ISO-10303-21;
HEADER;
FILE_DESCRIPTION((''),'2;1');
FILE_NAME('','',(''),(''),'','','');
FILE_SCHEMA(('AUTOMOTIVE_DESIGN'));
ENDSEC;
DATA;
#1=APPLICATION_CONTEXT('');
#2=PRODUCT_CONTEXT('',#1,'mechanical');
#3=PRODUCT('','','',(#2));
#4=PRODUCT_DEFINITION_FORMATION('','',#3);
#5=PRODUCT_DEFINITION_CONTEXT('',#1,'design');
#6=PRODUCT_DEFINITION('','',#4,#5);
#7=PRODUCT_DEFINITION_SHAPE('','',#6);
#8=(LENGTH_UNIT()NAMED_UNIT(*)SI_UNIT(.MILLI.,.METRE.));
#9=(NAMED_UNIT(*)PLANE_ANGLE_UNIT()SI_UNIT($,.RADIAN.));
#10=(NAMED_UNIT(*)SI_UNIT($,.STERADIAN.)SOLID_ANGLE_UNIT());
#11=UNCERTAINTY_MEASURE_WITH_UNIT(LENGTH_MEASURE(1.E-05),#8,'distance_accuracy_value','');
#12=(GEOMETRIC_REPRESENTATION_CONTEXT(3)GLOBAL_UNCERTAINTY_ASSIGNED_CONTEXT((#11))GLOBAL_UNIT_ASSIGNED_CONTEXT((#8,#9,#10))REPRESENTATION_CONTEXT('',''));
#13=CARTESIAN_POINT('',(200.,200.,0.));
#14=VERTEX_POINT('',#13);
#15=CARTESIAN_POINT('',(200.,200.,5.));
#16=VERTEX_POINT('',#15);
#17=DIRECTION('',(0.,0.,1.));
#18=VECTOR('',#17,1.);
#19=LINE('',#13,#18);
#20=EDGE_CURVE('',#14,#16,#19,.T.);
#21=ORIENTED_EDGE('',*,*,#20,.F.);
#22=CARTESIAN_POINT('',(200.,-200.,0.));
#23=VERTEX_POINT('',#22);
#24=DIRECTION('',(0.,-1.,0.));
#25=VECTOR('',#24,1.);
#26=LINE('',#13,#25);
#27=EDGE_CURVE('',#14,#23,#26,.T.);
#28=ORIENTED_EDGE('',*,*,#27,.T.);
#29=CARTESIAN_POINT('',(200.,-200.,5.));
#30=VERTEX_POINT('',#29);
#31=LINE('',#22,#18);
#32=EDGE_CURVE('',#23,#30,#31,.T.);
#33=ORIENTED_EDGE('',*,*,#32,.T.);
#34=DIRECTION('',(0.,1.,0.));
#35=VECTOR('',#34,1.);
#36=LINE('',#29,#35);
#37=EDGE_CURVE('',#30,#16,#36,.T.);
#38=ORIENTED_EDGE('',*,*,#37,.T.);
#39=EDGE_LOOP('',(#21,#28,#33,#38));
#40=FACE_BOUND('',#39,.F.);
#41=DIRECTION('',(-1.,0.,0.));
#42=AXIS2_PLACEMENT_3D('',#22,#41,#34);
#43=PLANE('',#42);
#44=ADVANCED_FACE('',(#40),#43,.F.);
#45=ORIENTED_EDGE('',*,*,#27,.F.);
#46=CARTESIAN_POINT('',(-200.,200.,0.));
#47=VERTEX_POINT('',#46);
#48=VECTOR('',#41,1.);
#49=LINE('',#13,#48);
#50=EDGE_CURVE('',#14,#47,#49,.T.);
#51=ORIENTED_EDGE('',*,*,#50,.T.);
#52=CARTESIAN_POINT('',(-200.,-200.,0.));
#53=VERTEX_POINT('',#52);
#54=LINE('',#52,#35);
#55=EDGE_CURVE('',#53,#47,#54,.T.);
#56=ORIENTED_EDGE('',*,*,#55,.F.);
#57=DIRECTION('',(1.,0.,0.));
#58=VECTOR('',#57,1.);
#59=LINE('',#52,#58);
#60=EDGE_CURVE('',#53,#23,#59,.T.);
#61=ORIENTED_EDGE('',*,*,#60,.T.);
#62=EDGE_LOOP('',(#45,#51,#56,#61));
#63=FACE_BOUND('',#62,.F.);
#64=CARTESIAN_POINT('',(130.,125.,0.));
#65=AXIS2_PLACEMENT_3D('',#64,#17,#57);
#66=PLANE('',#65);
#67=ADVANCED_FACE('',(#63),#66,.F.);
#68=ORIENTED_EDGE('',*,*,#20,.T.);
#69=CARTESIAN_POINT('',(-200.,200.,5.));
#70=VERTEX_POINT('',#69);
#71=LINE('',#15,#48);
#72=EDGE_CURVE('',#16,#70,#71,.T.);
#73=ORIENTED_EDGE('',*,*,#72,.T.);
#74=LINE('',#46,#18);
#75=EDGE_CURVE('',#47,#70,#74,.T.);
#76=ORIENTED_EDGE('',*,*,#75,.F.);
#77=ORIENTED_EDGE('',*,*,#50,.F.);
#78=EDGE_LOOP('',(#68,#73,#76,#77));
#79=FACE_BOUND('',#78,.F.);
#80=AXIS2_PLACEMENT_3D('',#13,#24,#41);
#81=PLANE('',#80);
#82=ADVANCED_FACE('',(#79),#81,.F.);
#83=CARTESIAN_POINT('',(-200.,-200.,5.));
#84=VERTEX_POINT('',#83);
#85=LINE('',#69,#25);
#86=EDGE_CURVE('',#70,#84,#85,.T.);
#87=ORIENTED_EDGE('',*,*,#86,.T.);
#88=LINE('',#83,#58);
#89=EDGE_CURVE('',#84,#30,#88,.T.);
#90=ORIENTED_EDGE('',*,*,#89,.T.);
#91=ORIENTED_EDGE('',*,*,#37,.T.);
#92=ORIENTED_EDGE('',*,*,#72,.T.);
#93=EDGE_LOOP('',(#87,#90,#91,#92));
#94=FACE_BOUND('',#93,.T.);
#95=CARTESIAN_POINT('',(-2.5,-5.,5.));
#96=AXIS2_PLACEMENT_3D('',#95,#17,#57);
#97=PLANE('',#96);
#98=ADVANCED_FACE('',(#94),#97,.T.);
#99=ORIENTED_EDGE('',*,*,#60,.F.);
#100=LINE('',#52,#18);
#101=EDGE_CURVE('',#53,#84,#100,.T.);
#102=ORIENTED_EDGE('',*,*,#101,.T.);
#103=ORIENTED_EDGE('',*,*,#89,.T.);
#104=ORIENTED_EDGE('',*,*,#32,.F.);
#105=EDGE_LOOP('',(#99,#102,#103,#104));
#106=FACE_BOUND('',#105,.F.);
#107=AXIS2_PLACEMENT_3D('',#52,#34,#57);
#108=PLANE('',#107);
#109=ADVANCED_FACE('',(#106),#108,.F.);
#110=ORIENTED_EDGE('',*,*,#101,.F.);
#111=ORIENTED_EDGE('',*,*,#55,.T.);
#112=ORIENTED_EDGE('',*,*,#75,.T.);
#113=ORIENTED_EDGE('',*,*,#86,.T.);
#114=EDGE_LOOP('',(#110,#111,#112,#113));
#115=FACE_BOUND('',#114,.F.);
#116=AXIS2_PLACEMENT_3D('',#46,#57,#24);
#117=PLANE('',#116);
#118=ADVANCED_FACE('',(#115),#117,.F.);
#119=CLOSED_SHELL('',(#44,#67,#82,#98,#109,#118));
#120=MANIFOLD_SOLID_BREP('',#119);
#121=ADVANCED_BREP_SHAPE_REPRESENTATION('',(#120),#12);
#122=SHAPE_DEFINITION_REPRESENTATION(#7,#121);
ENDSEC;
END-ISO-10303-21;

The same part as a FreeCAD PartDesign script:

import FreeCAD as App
import Part
import Sketcher

doc = App.newDocument("Part")
params = doc.addObject("Spreadsheet::Sheet", "Params")
for row, (alias, value) in enumerate([
    ("sketch1_width", "400 mm"),
    ("sketch1_height", "130 mm"),
    ("pad1_length", "5 mm"),
    ("sketch2_width", "400 mm"),
    ("sketch2_width2", "130 mm"),
    ("pad2_length", "5 mm"),
    ("sketch3_width", "130 mm"),
    ("pad3_length", "5 mm"),
], start=1):
    params.set(f"A{row}", alias)
    params.set(f"B{row}", "=" + value)
    params.setAlias(f"B{row}", alias)

body = doc.addObject("PartDesign::Body", "Body")

# Sketch on XY plane
sketch1 = body.newObject("Sketcher::SketchObject", "Sketch")
sketch1.AttachmentSupport = (doc.getObject("XY_Plane"), [""])
sketch1.MapMode = "FlatFace"
sketch1.addGeometry(Part.LineSegment(App.Vector(-200, -70, 0), App.Vector(-200, -200, 0)), False)
sketch1.addGeometry(Part.LineSegment(App.Vector(-200, -200, 0), App.Vector(200, -200, 0)), False)
sketch1.addGeometry(Part.LineSegment(App.Vector(200, -200, 0), App.Vector(200, -70, 0)), False)
sketch1.addGeometry(Part.LineSegment(App.Vector(200, -70, 0), App.Vector(-200, -70, 0)), False)
sketch1.addConstraint(Sketcher.Constraint("Coincident", 0, 2, 1, 1))
sketch1.addConstraint(Sketcher.Constraint("Coincident", 1, 2, 2, 1))
sketch1.addConstraint(Sketcher.Constraint("Coincident", 2, 2, 3, 1))
sketch1.addConstraint(Sketcher.Constraint("Coincident", 3, 2, 0, 1))
sketch1.addConstraint(Sketcher.Constraint("Vertical", 0))
sketch1.addConstraint(Sketcher.Constraint("Horizontal", 1))
sketch1.addConstraint(Sketcher.Constraint("Vertical", 2))
sketch1.addConstraint(Sketcher.Constraint("Horizontal", 3))
sketch1.addConstraint(Sketcher.Constraint("DistanceX", 1, 1, 1, 2, 400.0))
sketch1.addConstraint(Sketcher.Constraint("DistanceY", 0, 2, 0, 1, 130.0))
sketch1.addConstraint(Sketcher.Constraint("DistanceX", 0, 2, -1, 1, 200.0))
sketch1.addConstraint(Sketcher.Constraint("DistanceY", 0, 2, -1, 1, 200.0))
sketch1.setExpression("Constraints[8]", "Params.sketch1_width")
sketch1.setExpression("Constraints[9]", "Params.sketch1_height")
pad1 = body.newObject("PartDesign::Pad", "Pad")
pad1.Profile = sketch1
pad1.setExpression("Length", "Params.pad1_length")

# Sketch on XY plane
sketch2 = body.newObject("Sketcher::SketchObject", "Sketch001")
sketch2.AttachmentSupport = (doc.getObject("XY_Plane"), [""])
sketch2.MapMode = "FlatFace"
sketch2.addGeometry(Part.LineSegment(App.Vector(-200, -200, 0), App.Vector(200, -200, 0)), False)
sketch2.addGeometry(Part.LineSegment(App.Vector(200, -200, 0), App.Vector(200, 200, 0)), False)
sketch2.addGeometry(Part.LineSegment(App.Vector(200, 200, 0), App.Vector(-200, 200, 0)), False)
sketch2.addGeometry(Part.LineSegment(App.Vector(-200, 200, 0), App.Vector(-200, -200, 0)), False)
sketch2.addGeometry(Part.LineSegment(App.Vector(195, 60, 0), App.Vector(65, 60, 0)), False)
sketch2.addGeometry(Part.LineSegment(App.Vector(65, 60, 0), App.Vector(65, 190, 0)), False)
sketch2.addGeometry(Part.LineSegment(App.Vector(65, 190, 0), App.Vector(195, 190, 0)), False)
sketch2.addGeometry(Part.LineSegment(App.Vector(195, 190, 0), App.Vector(195, 60, 0)), False)
sketch2.addConstraint(Sketcher.Constraint("Coincident", 0, 2, 1, 1))
sketch2.addConstraint(Sketcher.Constraint("Coincident", 1, 2, 2, 1))
sketch2.addConstraint(Sketcher.Constraint("Coincident", 2, 2, 3, 1))
sketch2.addConstraint(Sketcher.Constraint("Coincident", 3, 2, 0, 1))
sketch2.addConstraint(Sketcher.Constraint("Coincident", 4, 2, 5, 1))
sketch2.addConstraint(Sketcher.Constraint("Coincident", 5, 2, 6, 1))
sketch2.addConstraint(Sketcher.Constraint("Coincident", 6, 2, 7, 1))
sketch2.addConstraint(Sketcher.Constraint("Coincident", 7, 2, 4, 1))
sketch2.addConstraint(Sketcher.Constraint("Horizontal", 0))
sketch2.addConstraint(Sketcher.Constraint("Vertical", 1))
sketch2.addConstraint(Sketcher.Constraint("Horizontal", 2))
sketch2.addConstraint(Sketcher.Constraint("Vertical", 3))
sketch2.addConstraint(Sketcher.Constraint("Horizontal", 4))
sketch2.addConstraint(Sketcher.Constraint("Vertical", 5))
sketch2.addConstraint(Sketcher.Constraint("Horizontal", 6))
sketch2.addConstraint(Sketcher.Constraint("Vertical", 7))
sketch2.addConstraint(Sketcher.Constraint("Symmetric", 0, 2, 2, 2, -1, 1))
sketch2.addConstraint(Sketcher.Constraint("Equal", 2, 1))
sketch2.addConstraint(Sketcher.Constraint("Equal", 6, 5))
sketch2.addConstraint(Sketcher.Constraint("DistanceX", 0, 1, 0, 2, 400.0))
sketch2.addConstraint(Sketcher.Constraint("DistanceX", 4, 2, 4, 1, 130.0))
sketch2.addConstraint(Sketcher.Constraint("DistanceX", -1, 1, 4, 2, 65.0))
sketch2.addConstraint(Sketcher.Constraint("DistanceY", -1, 1, 4, 2, 60.0))
sketch2.setExpression("Constraints[19]", "Params.sketch2_width")
sketch2.setExpression("Constraints[20]", "Params.sketch2_width2")
pad2 = body.newObject("PartDesign::Pad", "Pad001")
pad2.Profile = sketch2
pad2.setExpression("Length", "Params.pad2_length")

# Sketch on XY plane
sketch3 = body.newObject("Sketcher::SketchObject", "Sketch002")
sketch3.AttachmentSupport = (doc.getObject("XY_Plane"), [""])
sketch3.MapMode = "FlatFace"
sketch3.addGeometry(Part.LineSegment(App.Vector(65, 190, 0), App.Vector(65, 60, 0)), False)
sketch3.addGeometry(Part.LineSegment(App.Vector(65, 60, 0), App.Vector(195, 60, 0)), False)
sketch3.addGeometry(Part.LineSegment(App.Vector(195, 60, 0), App.Vector(195, 190, 0)), False)
sketch3.addGeometry(Part.LineSegment(App.Vector(195, 190, 0), App.Vector(65, 190, 0)), False)
sketch3.addConstraint(Sketcher.Constraint("Coincident", 0, 2, 1, 1))
sketch3.addConstraint(Sketcher.Constraint("Coincident", 1, 2, 2, 1))
sketch3.addConstraint(Sketcher.Constraint("Coincident", 2, 2, 3, 1))
sketch3.addConstraint(Sketcher.Constraint("Coincident", 3, 2, 0, 1))
sketch3.addConstraint(Sketcher.Constraint("Vertical", 0))
sketch3.addConstraint(Sketcher.Constraint("Horizontal", 1))
sketch3.addConstraint(Sketcher.Constraint("Vertical", 2))
sketch3.addConstraint(Sketcher.Constraint("Horizontal", 3))
sketch3.addConstraint(Sketcher.Constraint("Equal", 3, 0))
sketch3.addConstraint(Sketcher.Constraint("DistanceX", 1, 1, 1, 2, 130.0))
sketch3.addConstraint(Sketcher.Constraint("DistanceX", -1, 1, 0, 2, 65.0))
sketch3.addConstraint(Sketcher.Constraint("DistanceY", -1, 1, 0, 2, 60.0))
sketch3.setExpression("Constraints[9]", "Params.sketch3_width")
pad3 = body.newObject("PartDesign::Pad", "Pad002")
pad3.Profile = sketch3
pad3.setExpression("Length", "Params.pad3_length")

doc.recompute()
